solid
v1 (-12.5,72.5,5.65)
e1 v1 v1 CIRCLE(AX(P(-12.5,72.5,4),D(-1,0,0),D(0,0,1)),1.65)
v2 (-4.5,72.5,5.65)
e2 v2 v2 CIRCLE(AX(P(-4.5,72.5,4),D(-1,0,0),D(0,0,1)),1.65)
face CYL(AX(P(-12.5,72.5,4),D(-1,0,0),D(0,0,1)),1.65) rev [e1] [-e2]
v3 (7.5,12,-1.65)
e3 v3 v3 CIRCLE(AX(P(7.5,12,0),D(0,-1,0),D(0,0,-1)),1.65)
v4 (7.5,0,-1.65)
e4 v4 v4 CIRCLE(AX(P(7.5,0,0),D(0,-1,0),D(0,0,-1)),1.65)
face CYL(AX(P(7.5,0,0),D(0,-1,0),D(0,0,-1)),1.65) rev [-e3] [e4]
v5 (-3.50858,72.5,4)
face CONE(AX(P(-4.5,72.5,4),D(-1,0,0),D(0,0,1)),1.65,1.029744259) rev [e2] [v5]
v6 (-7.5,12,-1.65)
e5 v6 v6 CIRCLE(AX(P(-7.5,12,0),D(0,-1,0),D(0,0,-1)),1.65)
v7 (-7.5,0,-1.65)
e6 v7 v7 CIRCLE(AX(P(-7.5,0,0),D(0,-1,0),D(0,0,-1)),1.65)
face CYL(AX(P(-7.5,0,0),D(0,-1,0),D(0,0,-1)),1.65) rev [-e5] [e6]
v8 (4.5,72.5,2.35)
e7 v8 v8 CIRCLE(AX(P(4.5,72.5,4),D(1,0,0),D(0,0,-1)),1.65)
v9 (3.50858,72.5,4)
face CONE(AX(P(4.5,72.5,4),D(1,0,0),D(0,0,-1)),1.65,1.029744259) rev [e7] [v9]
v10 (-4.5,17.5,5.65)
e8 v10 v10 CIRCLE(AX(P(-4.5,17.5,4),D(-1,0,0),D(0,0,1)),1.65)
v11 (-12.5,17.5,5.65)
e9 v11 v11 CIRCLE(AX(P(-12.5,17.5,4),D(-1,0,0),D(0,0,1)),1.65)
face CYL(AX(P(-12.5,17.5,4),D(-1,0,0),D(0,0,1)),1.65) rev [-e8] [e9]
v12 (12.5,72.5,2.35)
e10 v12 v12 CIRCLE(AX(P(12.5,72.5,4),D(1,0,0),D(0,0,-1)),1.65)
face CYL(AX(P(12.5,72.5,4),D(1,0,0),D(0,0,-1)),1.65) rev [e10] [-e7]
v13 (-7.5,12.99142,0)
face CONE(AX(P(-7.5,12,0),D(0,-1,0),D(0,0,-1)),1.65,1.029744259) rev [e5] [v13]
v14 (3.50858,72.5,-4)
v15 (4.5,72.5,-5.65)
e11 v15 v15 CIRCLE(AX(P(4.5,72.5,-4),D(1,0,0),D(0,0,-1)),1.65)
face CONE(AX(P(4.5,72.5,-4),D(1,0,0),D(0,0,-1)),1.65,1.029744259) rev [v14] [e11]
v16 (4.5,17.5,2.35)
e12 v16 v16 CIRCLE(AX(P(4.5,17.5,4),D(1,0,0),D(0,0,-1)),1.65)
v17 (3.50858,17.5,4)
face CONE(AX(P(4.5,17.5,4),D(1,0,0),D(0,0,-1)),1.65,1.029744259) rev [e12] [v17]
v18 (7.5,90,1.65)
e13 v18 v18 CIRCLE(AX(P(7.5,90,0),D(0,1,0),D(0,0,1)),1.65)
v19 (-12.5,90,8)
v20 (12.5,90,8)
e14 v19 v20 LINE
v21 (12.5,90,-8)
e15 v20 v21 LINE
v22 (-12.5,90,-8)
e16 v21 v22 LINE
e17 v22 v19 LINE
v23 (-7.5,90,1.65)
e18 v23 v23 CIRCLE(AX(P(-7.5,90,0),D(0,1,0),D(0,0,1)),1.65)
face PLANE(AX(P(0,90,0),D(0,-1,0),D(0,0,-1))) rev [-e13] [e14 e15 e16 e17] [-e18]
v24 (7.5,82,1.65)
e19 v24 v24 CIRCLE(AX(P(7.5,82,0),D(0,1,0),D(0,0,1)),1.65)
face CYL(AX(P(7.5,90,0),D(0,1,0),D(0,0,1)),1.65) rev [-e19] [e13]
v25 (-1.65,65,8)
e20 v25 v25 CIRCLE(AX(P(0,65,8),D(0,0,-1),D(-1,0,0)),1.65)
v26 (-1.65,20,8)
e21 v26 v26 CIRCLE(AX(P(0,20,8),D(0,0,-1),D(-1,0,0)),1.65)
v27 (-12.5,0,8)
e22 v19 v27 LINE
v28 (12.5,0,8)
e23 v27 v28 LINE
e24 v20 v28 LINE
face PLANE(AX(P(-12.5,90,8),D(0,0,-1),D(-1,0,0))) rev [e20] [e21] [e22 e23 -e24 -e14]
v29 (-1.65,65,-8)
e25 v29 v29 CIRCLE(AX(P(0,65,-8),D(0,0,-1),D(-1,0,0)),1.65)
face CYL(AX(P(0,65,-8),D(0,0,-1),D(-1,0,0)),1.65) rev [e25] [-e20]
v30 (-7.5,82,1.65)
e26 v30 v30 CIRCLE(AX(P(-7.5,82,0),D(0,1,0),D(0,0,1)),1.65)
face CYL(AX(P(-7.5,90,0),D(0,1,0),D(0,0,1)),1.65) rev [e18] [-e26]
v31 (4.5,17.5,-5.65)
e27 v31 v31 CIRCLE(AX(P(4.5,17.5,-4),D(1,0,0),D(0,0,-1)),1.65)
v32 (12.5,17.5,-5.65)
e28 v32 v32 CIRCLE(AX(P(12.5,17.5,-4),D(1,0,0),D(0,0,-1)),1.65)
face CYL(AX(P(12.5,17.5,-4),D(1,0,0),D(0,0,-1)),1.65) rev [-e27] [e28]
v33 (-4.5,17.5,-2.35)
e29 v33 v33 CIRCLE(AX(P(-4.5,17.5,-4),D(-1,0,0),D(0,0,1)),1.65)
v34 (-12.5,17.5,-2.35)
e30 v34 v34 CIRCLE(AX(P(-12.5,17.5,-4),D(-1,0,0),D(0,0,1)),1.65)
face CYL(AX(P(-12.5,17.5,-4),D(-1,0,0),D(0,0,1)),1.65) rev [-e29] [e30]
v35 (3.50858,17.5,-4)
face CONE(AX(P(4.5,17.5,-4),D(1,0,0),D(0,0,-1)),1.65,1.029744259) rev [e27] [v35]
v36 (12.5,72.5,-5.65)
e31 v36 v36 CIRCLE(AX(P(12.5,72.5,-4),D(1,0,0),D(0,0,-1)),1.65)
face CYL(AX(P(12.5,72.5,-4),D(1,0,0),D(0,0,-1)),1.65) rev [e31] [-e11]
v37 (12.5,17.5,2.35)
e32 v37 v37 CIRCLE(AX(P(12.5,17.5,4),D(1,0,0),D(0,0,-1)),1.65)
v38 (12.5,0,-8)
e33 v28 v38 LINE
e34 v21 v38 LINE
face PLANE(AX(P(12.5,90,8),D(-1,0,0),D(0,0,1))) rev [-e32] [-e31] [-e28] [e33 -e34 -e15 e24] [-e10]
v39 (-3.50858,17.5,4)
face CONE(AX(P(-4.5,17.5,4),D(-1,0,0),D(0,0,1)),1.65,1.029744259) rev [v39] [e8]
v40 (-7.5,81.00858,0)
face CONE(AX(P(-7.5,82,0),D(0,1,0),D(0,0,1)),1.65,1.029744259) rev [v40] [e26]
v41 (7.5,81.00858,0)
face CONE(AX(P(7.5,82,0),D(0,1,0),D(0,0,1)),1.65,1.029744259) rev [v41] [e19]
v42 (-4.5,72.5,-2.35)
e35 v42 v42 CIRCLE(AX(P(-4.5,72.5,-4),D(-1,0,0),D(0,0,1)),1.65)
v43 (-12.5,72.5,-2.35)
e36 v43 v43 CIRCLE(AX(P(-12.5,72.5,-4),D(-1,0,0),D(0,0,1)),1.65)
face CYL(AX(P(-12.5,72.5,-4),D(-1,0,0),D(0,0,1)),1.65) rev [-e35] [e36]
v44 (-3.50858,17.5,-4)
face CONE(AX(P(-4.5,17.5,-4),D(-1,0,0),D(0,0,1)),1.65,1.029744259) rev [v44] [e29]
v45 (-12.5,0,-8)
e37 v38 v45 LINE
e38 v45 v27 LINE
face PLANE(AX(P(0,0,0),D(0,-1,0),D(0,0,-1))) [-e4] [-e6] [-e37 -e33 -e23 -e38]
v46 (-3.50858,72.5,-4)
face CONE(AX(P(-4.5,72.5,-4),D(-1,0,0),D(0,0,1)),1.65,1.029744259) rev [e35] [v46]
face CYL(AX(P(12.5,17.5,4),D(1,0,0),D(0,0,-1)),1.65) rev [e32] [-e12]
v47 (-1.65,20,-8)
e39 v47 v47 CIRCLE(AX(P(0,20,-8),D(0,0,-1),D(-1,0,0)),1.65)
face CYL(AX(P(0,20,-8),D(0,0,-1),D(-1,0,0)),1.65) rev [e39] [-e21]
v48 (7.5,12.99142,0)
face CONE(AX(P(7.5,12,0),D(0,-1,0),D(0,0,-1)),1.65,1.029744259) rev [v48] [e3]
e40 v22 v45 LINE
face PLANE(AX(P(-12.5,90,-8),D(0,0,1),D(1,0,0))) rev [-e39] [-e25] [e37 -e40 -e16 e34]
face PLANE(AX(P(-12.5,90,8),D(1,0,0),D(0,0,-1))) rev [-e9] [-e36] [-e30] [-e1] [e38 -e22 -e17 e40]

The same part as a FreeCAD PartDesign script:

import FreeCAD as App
import Part
import Sketcher

V = App.Vector
Q = App.Units.Quantity

doc = App.newDocument("Part")
body = doc.addObject("PartDesign::Body", "Body")

# Sketch on XZ plane
sketch1 = doc.addObject("Sketcher::SketchObject", "Sketch")
body.addObject(sketch1)
sketch1.AttachmentSupport = (doc.XZ_Plane, [""])
sketch1.MapMode = "FlatFace"
sketch1.addGeometry(Part.LineSegment(V(-12.5, -8, 0), V(-12.5, 8, 0)), False)
sketch1.addGeometry(Part.LineSegment(V(-12.5, 8, 0), V(12.5, 8, 0)), False)
sketch1.addGeometry(Part.LineSegment(V(12.5, 8, 0), V(12.5, -8, 0)), False)
sketch1.addGeometry(Part.LineSegment(V(12.5, -8, 0), V(-12.5, -8, 0)), False)
sketch1.addConstraint(Sketcher.Constraint("Coincident", 0, 2, 1, 1))
sketch1.addConstraint(Sketcher.Constraint("Coincident", 1, 2, 2, 1))
sketch1.addConstraint(Sketcher.Constraint("Coincident", 2, 2, 3, 1))
sketch1.addConstraint(Sketcher.Constraint("Coincident", 3, 2, 0, 1))
sketch1.addConstraint(Sketcher.Constraint("Vertical", 0))
sketch1.addConstraint(Sketcher.Constraint("Horizontal", 1))
sketch1.addConstraint(Sketcher.Constraint("Vertical", 2))
sketch1.addConstraint(Sketcher.Constraint("Horizontal", 3))
sketch1.addConstraint(Sketcher.Constraint("Symmetric", 0, 2, 2, 2, -1, 1))
sketch1.addConstraint(Sketcher.Constraint("DistanceX", 1, 1, 1, 2, Q("25 mm")))
sketch1.addConstraint(Sketcher.Constraint("DistanceY", 0, 1, 0, 2, Q("16 mm")))
pad1 = doc.addObject("PartDesign::Pad", "Pad")
body.addObject(pad1)
pad1.Profile = sketch1
pad1.Length = 90
pad1.Reversed = True

# Sketch on XZ plane
sketch2 = doc.addObject("Sketcher::SketchObject", "Sketch001")
body.addObject(sketch2)
sketch2.AttachmentSupport = (doc.XZ_Plane, [""])
sketch2.MapMode = "FlatFace"
sketch2.AttachmentOffset = App.Placement(V(0, 0, -90), App.Rotation())
sketch2.addGeometry(Part.Circle(V(-7.5, 0, 0), V(0, 0, 1), 1.65), False)
sketch2.addGeometry(Part.Circle(V(7.5, 0, 0), V(0, 0, 1), 1.65), False)
sketch2.addConstraint(Sketcher.Constraint("Equal", 0, 1))
sketch2.addConstraint(Sketcher.Constraint("Symmetric", 0, 3, 1, 3, -1, 1))
sketch2.addConstraint(Sketcher.Constraint("PointOnObject", 0, 3, -1))
sketch2.addConstraint(Sketcher.Constraint("Diameter", 0, Q("3.3 mm")))
sketch2.addConstraint(Sketcher.Constraint("DistanceX", 0, 3, 1, 3, Q("15 mm")))
doc.recompute()
hole = doc.addObject("PartDesign::Hole", "Hole")
body.addObject(hole)
hole.Profile = sketch2
hole.ThreadType = "None"
hole.Diameter = 3.3
hole.DepthType = "Dimension"
hole.Depth = 8
hole.DrillPoint = "Angled"
hole.DrillPointAngle = 118
hole.Reversed = True

# Sketch on XZ plane
sketch3 = doc.addObject("Sketcher::SketchObject", "Sketch002")
body.addObject(sketch3)
sketch3.AttachmentSupport = (doc.XZ_Plane, [""])
sketch3.MapMode = "FlatFace"
sketch3.addGeometry(Part.Circle(V(7.5, 0, 0), V(0, 0, 1), 1.65), False)
sketch3.addGeometry(Part.Circle(V(-7.5, 0, 0), V(0, 0, 1), 1.65), False)
sketch3.addConstraint(Sketcher.Constraint("Equal", 0, 1))
sketch3.addConstraint(Sketcher.Constraint("Symmetric", 0, 3, 1, 3, -1, 1))
sketch3.addConstraint(Sketcher.Constraint("PointOnObject", 0, 3, -1))
sketch3.addConstraint(Sketcher.Constraint("Diameter", 0, Q("3.3 mm")))
sketch3.addConstraint(Sketcher.Constraint("DistanceX", 1, 3, 0, 3, Q("15 mm")))
doc.recompute()
hole2 = doc.addObject("PartDesign::Hole", "Hole001")
body.addObject(hole2)
hole2.Profile = sketch3
hole2.ThreadType = "None"
hole2.Diameter = 3.3
hole2.DepthType = "Dimension"
hole2.Depth = 12
hole2.DrillPoint = "Angled"
hole2.DrillPointAngle = 118

# Sketch on XY plane
sketch4 = doc.addObject("Sketcher::SketchObject", "Sketch003")
body.addObject(sketch4)
sketch4.AttachmentSupport = (doc.XY_Plane, [""])
sketch4.MapMode = "FlatFace"
sketch4.AttachmentOffset = App.Placement(V(0, 0, -8), App.Rotation())
sketch4.addGeometry(Part.Circle(V(0, 20, 0), V(0, 0, 1), 1.65), False)
sketch4.addGeometry(Part.Circle(V(0, 65, 0), V(0, 0, 1), 1.65), False)
sketch4.addGeometry(Part.Circle(V(-15, 65, 0), V(0, 0, 1), 1.65), False)
sketch4.addGeometry(Part.Circle(V(-15, 20, 0), V(0, 0, 1), 1.65), False)
sketch4.addConstraint(Sketcher.Constraint("Equal", 0, 1))
sketch4.addConstraint(Sketcher.Constraint("Equal", 1, 2))
sketch4.addConstraint(Sketcher.Constraint("Equal", 2, 3))
sketch4.addConstraint(Sketcher.Constraint("PointOnObject", 0, 3, -2))
sketch4.addConstraint(Sketcher.Constraint("PointOnObject", 1, 3, -2))
sketch4.addConstraint(Sketcher.Constraint("Horizontal", 1, 3, 2, 3))
sketch4.addConstraint(Sketcher.Constraint("Horizontal", 0, 3, 3, 3))
sketch4.addConstraint(Sketcher.Constraint("Vertical", 2, 3, 3, 3))
sketch4.addConstraint(Sketcher.Constraint("Diameter", 0, Q("3.3 mm")))
sketch4.addConstraint(Sketcher.Constraint("DistanceY", -1, 1, 0, 3, Q("20 mm")))
sketch4.addConstraint(Sketcher.Constraint("DistanceY", -1, 1, 1, 3, Q("65 mm")))
sketch4.addConstraint(Sketcher.Constraint("DistanceX", 2, 3, -1, 1, Q("15 mm")))
doc.recompute()
hole3 = doc.addObject("PartDesign::Hole", "Hole002")
body.addObject(hole3)
hole3.Profile = sketch4
hole3.ThreadType = "None"
hole3.Diameter = 3.3
hole3.DepthType = "ThroughAll"
hole3.Reversed = True

# Sketch on XZ plane
sketch5 = doc.addObject("Sketcher::SketchObject", "Sketch004")
body.addObject(sketch5)
sketch5.AttachmentSupport = (doc.XZ_Plane, [""])
sketch5.MapMode = "FlatFace"
sketch5.AttachmentOffset = App.Placement(V(0, 0, -17.5), App.Rotation())
sketch5.addGeometry(Part.LineSegment(V(-3.50858, 4, 0), V(-12.5, 4, 0)), False)
sketch5.addGeometry(Part.LineSegment(V(-12.5, 4, 0), V(-12.5, 5.65, 0)), False)
sketch5.addGeometry(Part.LineSegment(V(-12.5, 5.65, 0), V(-4.5, 5.65, 0)), False)
sketch5.addGeometry(Part.LineSegment(V(-4.5, 5.65, 0), V(-3.50858, 4, 0)), False)
sketch5.addGeometry(Part.LineSegment(V(-12.5, 4, 0), V(-3.50858, 4, 0)), True)  # axis
sketch5.addConstraint(Sketcher.Constraint("Coincident", 0, 2, 1, 1))
sketch5.addConstraint(Sketcher.Constraint("Coincident", 1, 2, 2, 1))
sketch5.addConstraint(Sketcher.Constraint("Coincident", 2, 2, 3, 1))
sketch5.addConstraint(Sketcher.Constraint("Coincident", 3, 2, 0, 1))
sketch5.addConstraint(Sketcher.Constraint("Horizontal", 0))
sketch5.addConstraint(Sketcher.Constraint("Vertical", 1))
sketch5.addConstraint(Sketcher.Constraint("Horizontal", 2))
sketch5.addConstraint(Sketcher.Constraint("Horizontal", 4))
sketch5.addConstraint(Sketcher.Constraint("Coincident", 4, 1, 0, 2))
sketch5.addConstraint(Sketcher.Constraint("Equal", 0, 4))
sketch5.addConstraint(Sketcher.Constraint("DistanceX", 2, 1, 2, 2, Q("8 mm")))
sketch5.addConstraint(Sketcher.Constraint("Angle", 3, Q("-59 deg")))
sketch5.addConstraint(Sketcher.Constraint("DistanceY", -1, 1, 0, 2, Q("4 mm")))
sketch5.addConstraint(Sketcher.Constraint("DistanceY", 1, 1, 1, 2, Q("1.65 mm")))
sketch5.addConstraint(Sketcher.Constraint("DistanceX", 0, 2, -1, 1, Q("12.5 mm")))
groove = doc.addObject("PartDesign::Groove", "Groove")
body.addObject(groove)
groove.Profile = sketch5
groove.ReferenceAxis = (sketch5, ["Axis0"])
groove.Angle = 360
doc.recompute()

datumline = doc.addObject("PartDesign::Line", "DatumLine")
body.addObject(datumline)
datumline.Placement = App.Placement(V(0, 0, 0), App.Rotation(V(0, 0, 1), V(0, 0.989586439, -0.143939846)))
linearpattern = doc.addObject("PartDesign::LinearPattern", "LinearPattern")
body.addObject(linearpattern)
linearpattern.Originals = [groove]
linearpattern.Direction = (datumline, [""])
linearpattern.Mode = "offset"
linearpattern.Offset = 55.578773
linearpattern.Occurrences = 2
body.Tip = linearpattern
doc.recompute()

linearpattern2 = doc.addObject("PartDesign::LinearPattern", "LinearPattern001")
body.addObject(linearpattern2)
linearpattern2.Originals = [groove]
linearpattern2.Direction = (doc.Y_Axis, [""])
linearpattern2.Mode = "offset"
linearpattern2.Offset = 55
linearpattern2.Occurrences = 2
body.Tip = linearpattern2
doc.recompute()

linearpattern3 = doc.addObject("PartDesign::LinearPattern", "LinearPattern002")
body.addObject(linearpattern3)
linearpattern3.Originals = [groove]
linearpattern3.Direction = (doc.Z_Axis, [""])
linearpattern3.Mode = "offset"
linearpattern3.Offset = 8
linearpattern3.Occurrences = 2
linearpattern3.Reversed = True
body.Tip = linearpattern3
doc.recompute()

mirrored = doc.addObject("PartDesign::Mirrored", "Mirrored")
body.addObject(mirrored)
mirrored.Originals = [groove]
mirrored.MirrorPlane = (doc.YZ_Plane, [""])
body.Tip = mirrored

# Sketch on XZ plane
sketch6 = doc.addObject("Sketcher::SketchObject", "Sketch005")
body.addObject(sketch6)
sketch6.AttachmentSupport = (doc.XZ_Plane, [""])
sketch6.MapMode = "FlatFace"
sketch6.AttachmentOffset = App.Placement(V(0, 0, -72.5), App.Rotation())
sketch6.addGeometry(Part.LineSegment(V(12.5, -4, 0), V(3.50858, -4, 0)), False)
sketch6.addGeometry(Part.LineSegment(V(3.50858, -4, 0), V(4.5, -2.35, 0)), False)
sketch6.addGeometry(Part.LineSegment(V(4.5, -2.35, 0), V(12.5, -2.35, 0)), False)
sketch6.addGeometry(Part.LineSegment(V(12.5, -2.35, 0), V(12.5, -4, 0)), False)
sketch6.addGeometry(Part.LineSegment(V(3.50858, -4, 0), V(12.5, -4, 0)), True)  # axis
sketch6.addConstraint(Sketcher.Constraint("Coincident", 0, 2, 1, 1))
sketch6.addConstraint(Sketcher.Constraint("Coincident", 1, 2, 2, 1))
sketch6.addConstraint(Sketcher.Constraint("Coincident", 2, 2, 3, 1))
sketch6.addConstraint(Sketcher.Constraint("Coincident", 3, 2, 0, 1))
sketch6.addConstraint(Sketcher.Constraint("Horizontal", 0))
sketch6.addConstraint(Sketcher.Constraint("Horizontal", 2))
sketch6.addConstraint(Sketcher.Constraint("Vertical", 3))
sketch6.addConstraint(Sketcher.Constraint("Horizontal", 4))
sketch6.addConstraint(Sketcher.Constraint("Coincident", 4, 1, 0, 2))
sketch6.addConstraint(Sketcher.Constraint("Vertical", 2, 2, 4, 2))
sketch6.addConstraint(Sketcher.Constraint("DistanceX", 2, 1, 2, 2, Q("8 mm")))
sketch6.addConstraint(Sketcher.Constraint("Angle", 1, Q("59 deg")))
sketch6.addConstraint(Sketcher.Constraint("DistanceY", 0, 2, -1, 1, Q("4 mm")))
sketch6.addConstraint(Sketcher.Constraint("DistanceY", 3, 2, 3, 1, Q("1.65 mm")))
sketch6.addConstraint(Sketcher.Constraint("DistanceX", -1, 1, 1, 2, Q("4.5 mm")))
groove2 = doc.addObject("PartDesign::Groove", "Groove001")
body.addObject(groove2)
groove2.Profile = sketch6
groove2.ReferenceAxis = (sketch6, ["Axis0"])
groove2.Angle = 360

# Sketch on XZ plane
sketch7 = doc.addObject("Sketcher::SketchObject", "Sketch006")
body.addObject(sketch7)
sketch7.AttachmentSupport = (doc.XZ_Plane, [""])
sketch7.MapMode = "FlatFace"
sketch7.AttachmentOffset = App.Placement(V(0, 0, -72.5), App.Rotation())
sketch7.addGeometry(Part.LineSegment(V(12.5, 4, 0), V(3.50858, 4, 0)), False)
sketch7.addGeometry(Part.LineSegment(V(3.50858, 4, 0), V(4.5, 5.65, 0)), False)
sketch7.addGeometry(Part.LineSegment(V(4.5, 5.65, 0), V(12.5, 5.65, 0)), False)
sketch7.addGeometry(Part.LineSegment(V(12.5, 5.65, 0), V(12.5, 4, 0)), False)
sketch7.addGeometry(Part.LineSegment(V(3.50858, 4, 0), V(12.5, 4, 0)), True)  # axis
sketch7.addConstraint(Sketcher.Constraint("Coincident", 0, 2, 1, 1))
sketch7.addConstraint(Sketcher.Constraint("Coincident", 1, 2, 2, 1))
sketch7.addConstraint(Sketcher.Constraint("Coincident", 2, 2, 3, 1))
sketch7.addConstraint(Sketcher.Constraint("Coincident", 3, 2, 0, 1))
sketch7.addConstraint(Sketcher.Constraint("Horizontal", 0))
sketch7.addConstraint(Sketcher.Constraint("Horizontal", 2))
sketch7.addConstraint(Sketcher.Constraint("Vertical", 3))
sketch7.addConstraint(Sketcher.Constraint("Horizontal", 4))
sketch7.addConstraint(Sketcher.Constraint("Coincident", 4, 1, 0, 2))
sketch7.addConstraint(Sketcher.Constraint("Vertical", 2, 2, 4, 2))
sketch7.addConstraint(Sketcher.Constraint("DistanceX", 2, 1, 2, 2, Q("8 mm")))
sketch7.addConstraint(Sketcher.Constraint("Angle", 1, Q("59 deg")))
sketch7.addConstraint(Sketcher.Constraint("DistanceY", -1, 1, 0, 2, Q("4 mm")))
sketch7.addConstraint(Sketcher.Constraint("DistanceY", 3, 2, 3, 1, Q("1.65 mm")))
sketch7.addConstraint(Sketcher.Constraint("DistanceX", -1, 1, 1, 2, Q("4.5 mm")))
groove3 = doc.addObject("PartDesign::Groove", "Groove002")
body.addObject(groove3)
groove3.Profile = sketch7
groove3.ReferenceAxis = (sketch7, ["Axis0"])
groove3.Angle = 360

# Sketch on XZ plane
sketch8 = doc.addObject("Sketcher::SketchObject", "Sketch007")
body.addObject(sketch8)
sketch8.AttachmentSupport = (doc.XZ_Plane, [""])
sketch8.MapMode = "FlatFace"
sketch8.AttachmentOffset = App.Placement(V(0, 0, -17.5), App.Rotation())
sketch8.addGeometry(Part.LineSegment(V(12.5, -4, 0), V(3.50858, -4, 0)), False)
sketch8.addGeometry(Part.LineSegment(V(3.50858, -4, 0), V(4.5, -2.35, 0)), False)
sketch8.addGeometry(Part.LineSegment(V(4.5, -2.35, 0), V(12.5, -2.35, 0)), False)
sketch8.addGeometry(Part.LineSegment(V(12.5, -2.35, 0), V(12.5, -4, 0)), False)
sketch8.addGeometry(Part.LineSegment(V(3.50858, -4, 0), V(12.5, -4, 0)), True)  # axis
sketch8.addConstraint(Sketcher.Constraint("Coincident", 0, 2, 1, 1))
sketch8.addConstraint(Sketcher.Constraint("Coincident", 1, 2, 2, 1))
sketch8.addConstraint(Sketcher.Constraint("Coincident", 2, 2, 3, 1))
sketch8.addConstraint(Sketcher.Constraint("Coincident", 3, 2, 0, 1))
sketch8.addConstraint(Sketcher.Constraint("Horizontal", 0))
sketch8.addConstraint(Sketcher.Constraint("Horizontal", 2))
sketch8.addConstraint(Sketcher.Constraint("Vertical", 3))
sketch8.addConstraint(Sketcher.Constraint("Horizontal", 4))
sketch8.addConstraint(Sketcher.Constraint("Coincident", 4, 1, 0, 2))
sketch8.addConstraint(Sketcher.Constraint("Vertical", 2, 2, 4, 2))
sketch8.addConstraint(Sketcher.Constraint("DistanceX", 2, 1, 2, 2, Q("8 mm")))
sketch8.addConstraint(Sketcher.Constraint("Angle", 1, Q("59 deg")))
sketch8.addConstraint(Sketcher.Constraint("DistanceY", 0, 2, -1, 1, Q("4 mm")))
sketch8.addConstraint(Sketcher.Constraint("DistanceY", 3, 2, 3, 1, Q("1.65 mm")))
sketch8.addConstraint(Sketcher.Constraint("DistanceX", -1, 1, 1, 2, Q("4.5 mm")))
groove4 = doc.addObject("PartDesign::Groove", "Groove003")
body.addObject(groove4)
groove4.Profile = sketch8
groove4.ReferenceAxis = (sketch8, ["Axis0"])
groove4.Angle = 360

doc.recompute()
